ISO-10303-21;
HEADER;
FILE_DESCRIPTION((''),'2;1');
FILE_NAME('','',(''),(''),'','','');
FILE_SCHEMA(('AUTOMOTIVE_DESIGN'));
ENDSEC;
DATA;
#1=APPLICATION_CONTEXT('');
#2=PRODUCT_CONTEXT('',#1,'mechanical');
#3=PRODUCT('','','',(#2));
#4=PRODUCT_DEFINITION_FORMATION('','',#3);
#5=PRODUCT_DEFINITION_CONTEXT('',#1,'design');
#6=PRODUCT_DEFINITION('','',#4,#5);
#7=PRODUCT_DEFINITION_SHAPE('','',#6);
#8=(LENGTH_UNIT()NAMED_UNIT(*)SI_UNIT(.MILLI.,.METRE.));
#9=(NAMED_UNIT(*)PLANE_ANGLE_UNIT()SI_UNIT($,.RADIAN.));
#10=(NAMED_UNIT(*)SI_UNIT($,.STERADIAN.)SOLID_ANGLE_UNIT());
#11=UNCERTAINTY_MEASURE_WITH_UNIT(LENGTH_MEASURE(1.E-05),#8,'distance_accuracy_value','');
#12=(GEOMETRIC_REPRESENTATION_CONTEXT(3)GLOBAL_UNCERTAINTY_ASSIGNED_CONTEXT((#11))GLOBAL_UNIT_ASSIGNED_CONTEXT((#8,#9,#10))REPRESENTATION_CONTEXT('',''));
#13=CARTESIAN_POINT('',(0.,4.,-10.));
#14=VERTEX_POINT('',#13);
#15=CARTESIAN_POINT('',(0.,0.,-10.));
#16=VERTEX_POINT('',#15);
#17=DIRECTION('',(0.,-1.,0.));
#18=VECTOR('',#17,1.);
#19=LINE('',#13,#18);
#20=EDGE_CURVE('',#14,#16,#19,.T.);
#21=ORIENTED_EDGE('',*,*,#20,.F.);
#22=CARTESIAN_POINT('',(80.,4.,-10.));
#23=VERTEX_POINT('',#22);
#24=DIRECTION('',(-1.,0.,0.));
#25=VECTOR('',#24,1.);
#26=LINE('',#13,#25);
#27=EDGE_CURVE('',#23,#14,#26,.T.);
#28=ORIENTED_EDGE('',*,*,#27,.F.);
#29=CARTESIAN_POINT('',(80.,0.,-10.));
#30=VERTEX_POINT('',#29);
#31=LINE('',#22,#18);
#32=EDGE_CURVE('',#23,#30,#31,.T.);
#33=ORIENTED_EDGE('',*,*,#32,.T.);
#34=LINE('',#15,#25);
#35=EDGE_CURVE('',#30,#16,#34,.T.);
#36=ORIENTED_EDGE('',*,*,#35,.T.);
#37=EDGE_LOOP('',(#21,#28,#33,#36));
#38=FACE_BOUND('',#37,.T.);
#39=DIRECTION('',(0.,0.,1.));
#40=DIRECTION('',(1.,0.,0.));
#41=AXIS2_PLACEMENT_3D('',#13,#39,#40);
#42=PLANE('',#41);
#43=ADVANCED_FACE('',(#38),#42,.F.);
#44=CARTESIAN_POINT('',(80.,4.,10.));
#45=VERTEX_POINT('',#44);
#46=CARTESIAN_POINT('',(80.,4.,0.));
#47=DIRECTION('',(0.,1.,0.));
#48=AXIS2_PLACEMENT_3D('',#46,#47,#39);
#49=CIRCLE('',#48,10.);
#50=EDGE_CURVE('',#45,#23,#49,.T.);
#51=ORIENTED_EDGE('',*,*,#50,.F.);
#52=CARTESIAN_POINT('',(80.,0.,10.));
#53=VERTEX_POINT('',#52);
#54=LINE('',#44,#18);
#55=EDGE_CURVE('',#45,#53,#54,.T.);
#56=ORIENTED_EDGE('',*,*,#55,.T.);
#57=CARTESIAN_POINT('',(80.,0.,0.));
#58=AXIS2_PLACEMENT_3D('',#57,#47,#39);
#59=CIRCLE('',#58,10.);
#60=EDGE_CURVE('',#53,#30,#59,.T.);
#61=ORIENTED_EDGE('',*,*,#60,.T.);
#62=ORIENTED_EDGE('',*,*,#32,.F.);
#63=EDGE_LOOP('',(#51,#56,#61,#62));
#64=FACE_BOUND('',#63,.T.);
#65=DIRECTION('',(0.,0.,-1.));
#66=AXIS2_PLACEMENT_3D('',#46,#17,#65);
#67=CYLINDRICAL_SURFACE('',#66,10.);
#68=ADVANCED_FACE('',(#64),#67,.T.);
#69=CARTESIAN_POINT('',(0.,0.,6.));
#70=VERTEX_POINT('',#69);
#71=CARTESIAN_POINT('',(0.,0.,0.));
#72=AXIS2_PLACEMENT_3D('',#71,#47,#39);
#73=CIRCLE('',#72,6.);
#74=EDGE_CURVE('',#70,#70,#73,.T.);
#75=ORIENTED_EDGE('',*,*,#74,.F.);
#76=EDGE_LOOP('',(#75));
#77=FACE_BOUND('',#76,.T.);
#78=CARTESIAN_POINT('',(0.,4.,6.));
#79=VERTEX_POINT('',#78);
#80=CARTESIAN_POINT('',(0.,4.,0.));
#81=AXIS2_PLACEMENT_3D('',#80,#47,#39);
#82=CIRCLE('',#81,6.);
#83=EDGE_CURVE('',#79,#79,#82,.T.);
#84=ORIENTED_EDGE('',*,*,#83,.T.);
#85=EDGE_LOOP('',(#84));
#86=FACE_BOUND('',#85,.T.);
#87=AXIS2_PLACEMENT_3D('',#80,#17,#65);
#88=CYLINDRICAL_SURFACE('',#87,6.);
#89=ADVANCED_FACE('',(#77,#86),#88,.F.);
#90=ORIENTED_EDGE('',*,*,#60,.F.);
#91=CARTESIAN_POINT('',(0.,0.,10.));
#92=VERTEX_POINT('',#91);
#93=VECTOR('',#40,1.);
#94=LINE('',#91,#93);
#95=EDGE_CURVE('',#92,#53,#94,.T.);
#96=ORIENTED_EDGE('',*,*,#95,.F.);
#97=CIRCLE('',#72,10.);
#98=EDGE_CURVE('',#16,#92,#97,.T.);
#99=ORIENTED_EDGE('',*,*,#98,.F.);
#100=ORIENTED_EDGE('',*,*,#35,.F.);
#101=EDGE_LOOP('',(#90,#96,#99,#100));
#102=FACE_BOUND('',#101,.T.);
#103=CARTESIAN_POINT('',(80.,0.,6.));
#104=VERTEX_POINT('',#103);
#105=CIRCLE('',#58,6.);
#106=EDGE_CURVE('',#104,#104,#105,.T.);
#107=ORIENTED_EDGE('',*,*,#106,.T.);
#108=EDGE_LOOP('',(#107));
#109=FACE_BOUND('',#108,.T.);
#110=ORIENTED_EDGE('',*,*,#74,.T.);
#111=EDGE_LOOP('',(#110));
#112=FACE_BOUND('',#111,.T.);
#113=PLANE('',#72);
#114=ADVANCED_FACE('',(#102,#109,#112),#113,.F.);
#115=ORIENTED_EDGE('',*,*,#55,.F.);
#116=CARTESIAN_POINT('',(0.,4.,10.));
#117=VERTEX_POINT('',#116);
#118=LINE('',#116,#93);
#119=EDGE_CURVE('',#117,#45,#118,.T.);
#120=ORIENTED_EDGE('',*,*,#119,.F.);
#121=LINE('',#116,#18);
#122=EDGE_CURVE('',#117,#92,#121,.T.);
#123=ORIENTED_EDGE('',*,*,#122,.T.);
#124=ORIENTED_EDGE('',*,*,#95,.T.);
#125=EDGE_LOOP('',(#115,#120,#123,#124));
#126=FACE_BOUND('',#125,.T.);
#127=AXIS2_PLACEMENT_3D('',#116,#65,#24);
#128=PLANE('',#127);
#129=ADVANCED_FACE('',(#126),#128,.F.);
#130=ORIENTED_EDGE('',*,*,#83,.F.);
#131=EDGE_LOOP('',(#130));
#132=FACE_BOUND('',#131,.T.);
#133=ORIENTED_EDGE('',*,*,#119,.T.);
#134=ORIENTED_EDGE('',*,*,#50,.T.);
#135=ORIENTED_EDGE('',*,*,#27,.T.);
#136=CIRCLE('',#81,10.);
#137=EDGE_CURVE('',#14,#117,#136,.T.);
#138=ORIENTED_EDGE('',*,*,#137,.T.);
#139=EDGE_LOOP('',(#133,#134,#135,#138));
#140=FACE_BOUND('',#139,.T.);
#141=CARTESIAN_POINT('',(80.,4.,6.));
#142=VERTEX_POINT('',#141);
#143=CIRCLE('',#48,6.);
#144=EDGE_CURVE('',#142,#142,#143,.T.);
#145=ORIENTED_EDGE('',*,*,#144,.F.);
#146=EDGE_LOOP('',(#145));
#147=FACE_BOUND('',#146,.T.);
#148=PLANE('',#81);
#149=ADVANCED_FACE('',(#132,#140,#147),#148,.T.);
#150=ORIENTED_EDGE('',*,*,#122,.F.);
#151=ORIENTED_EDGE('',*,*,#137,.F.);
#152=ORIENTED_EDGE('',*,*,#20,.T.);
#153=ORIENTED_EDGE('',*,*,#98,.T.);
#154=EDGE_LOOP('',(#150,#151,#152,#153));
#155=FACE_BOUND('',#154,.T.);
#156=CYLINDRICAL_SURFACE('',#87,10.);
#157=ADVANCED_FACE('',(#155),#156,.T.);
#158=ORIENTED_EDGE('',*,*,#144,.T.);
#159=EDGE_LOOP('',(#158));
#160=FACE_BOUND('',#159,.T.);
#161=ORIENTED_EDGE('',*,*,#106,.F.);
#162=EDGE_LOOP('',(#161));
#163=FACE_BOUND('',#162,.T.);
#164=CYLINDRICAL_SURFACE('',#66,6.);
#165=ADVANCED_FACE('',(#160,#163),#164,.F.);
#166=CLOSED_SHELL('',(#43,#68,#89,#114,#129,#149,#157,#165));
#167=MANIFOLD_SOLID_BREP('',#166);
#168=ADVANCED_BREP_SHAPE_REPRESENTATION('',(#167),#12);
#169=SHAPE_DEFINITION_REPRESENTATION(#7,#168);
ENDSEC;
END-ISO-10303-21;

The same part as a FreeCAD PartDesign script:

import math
import FreeCAD as App
import Part
import Sketcher
from FreeCAD import Vector

doc = App.newDocument("Part")
params = doc.addObject("Spreadsheet::Sheet", "Params")
for row, (alias, value) in enumerate([
    ("sketch1_diameter", "12 mm"),
    ("sketch1_radius", "10 mm"),
    ("sketch1_width", "80 mm"),
    ("pad1_length", "4 mm"),
], start=1):
    params.set(f"A{row}", alias)
    params.set(f"B{row}", "=" + value)
    params.setAlias(f"B{row}", alias)

body = doc.addObject("PartDesign::Body", "Body")

# Sketch on XZ plane
sketch1 = body.newObject("Sketcher::SketchObject", "Sketch")
sketch1.AttachmentSupport = (doc.getObject("XZ_Plane"), [""])
sketch1.MapMode = "FlatFace"
sketch1.addGeometry([
    Part.LineSegment(Vector(80, -10, 0), Vector(0, -10, 0)),  # 0
    Part.ArcOfCircle(Part.Circle(Vector(0, 0, 0), Vector(0, 0, 1), 10), math.radians(90), math.radians(270)),  # 1
    Part.LineSegment(Vector(0, 10, 0), Vector(80, 10, 0)),  # 2
    Part.ArcOfCircle(Part.Circle(Vector(80, 0, 0), Vector(0, 0, 1), 10), math.radians(-90), math.radians(90)),  # 3
    Part.Circle(Vector(80, 0, 0), Vector(0, 0, 1), 6),  # 4
    Part.Circle(Vector(0, 0, 0), Vector(0, 0, 1), 6),  # 5
], False)
sketch1.addConstraint([
    Sketcher.Constraint("Tangent", 0, 2, 1, 2),
    Sketcher.Constraint("Tangent", 1, 1, 2, 1),
    Sketcher.Constraint("Tangent", 2, 2, 3, 2),
    Sketcher.Constraint("Tangent", 3, 1, 0, 1),
    Sketcher.Constraint("Horizontal", 0),
    Sketcher.Constraint("Horizontal", 2),
    Sketcher.Constraint("Coincident", 1, 3, -1, 1),
    Sketcher.Constraint("Coincident", 5, 3, -1, 1),
    Sketcher.Constraint("Coincident", 4, 3, 3, 3),
    Sketcher.Constraint("Equal", 4, 5),
    Sketcher.Constraint("Diameter", 4, 12.0),
    Sketcher.Constraint("Radius", 1, 10.0),
    Sketcher.Constraint("DistanceX", 0, 2, 0, 1, 80.0),
])
sketch1.setExpression("Constraints[10]", "Params.sketch1_diameter")
sketch1.setExpression("Constraints[11]", "Params.sketch1_radius")
sketch1.setExpression("Constraints[12]", "Params.sketch1_width")
pad1 = body.newObject("PartDesign::Pad", "Pad")
pad1.Profile = sketch1
pad1.setExpression("Length", "Params.pad1_length")
pad1.Reversed = True

doc.recompute()
